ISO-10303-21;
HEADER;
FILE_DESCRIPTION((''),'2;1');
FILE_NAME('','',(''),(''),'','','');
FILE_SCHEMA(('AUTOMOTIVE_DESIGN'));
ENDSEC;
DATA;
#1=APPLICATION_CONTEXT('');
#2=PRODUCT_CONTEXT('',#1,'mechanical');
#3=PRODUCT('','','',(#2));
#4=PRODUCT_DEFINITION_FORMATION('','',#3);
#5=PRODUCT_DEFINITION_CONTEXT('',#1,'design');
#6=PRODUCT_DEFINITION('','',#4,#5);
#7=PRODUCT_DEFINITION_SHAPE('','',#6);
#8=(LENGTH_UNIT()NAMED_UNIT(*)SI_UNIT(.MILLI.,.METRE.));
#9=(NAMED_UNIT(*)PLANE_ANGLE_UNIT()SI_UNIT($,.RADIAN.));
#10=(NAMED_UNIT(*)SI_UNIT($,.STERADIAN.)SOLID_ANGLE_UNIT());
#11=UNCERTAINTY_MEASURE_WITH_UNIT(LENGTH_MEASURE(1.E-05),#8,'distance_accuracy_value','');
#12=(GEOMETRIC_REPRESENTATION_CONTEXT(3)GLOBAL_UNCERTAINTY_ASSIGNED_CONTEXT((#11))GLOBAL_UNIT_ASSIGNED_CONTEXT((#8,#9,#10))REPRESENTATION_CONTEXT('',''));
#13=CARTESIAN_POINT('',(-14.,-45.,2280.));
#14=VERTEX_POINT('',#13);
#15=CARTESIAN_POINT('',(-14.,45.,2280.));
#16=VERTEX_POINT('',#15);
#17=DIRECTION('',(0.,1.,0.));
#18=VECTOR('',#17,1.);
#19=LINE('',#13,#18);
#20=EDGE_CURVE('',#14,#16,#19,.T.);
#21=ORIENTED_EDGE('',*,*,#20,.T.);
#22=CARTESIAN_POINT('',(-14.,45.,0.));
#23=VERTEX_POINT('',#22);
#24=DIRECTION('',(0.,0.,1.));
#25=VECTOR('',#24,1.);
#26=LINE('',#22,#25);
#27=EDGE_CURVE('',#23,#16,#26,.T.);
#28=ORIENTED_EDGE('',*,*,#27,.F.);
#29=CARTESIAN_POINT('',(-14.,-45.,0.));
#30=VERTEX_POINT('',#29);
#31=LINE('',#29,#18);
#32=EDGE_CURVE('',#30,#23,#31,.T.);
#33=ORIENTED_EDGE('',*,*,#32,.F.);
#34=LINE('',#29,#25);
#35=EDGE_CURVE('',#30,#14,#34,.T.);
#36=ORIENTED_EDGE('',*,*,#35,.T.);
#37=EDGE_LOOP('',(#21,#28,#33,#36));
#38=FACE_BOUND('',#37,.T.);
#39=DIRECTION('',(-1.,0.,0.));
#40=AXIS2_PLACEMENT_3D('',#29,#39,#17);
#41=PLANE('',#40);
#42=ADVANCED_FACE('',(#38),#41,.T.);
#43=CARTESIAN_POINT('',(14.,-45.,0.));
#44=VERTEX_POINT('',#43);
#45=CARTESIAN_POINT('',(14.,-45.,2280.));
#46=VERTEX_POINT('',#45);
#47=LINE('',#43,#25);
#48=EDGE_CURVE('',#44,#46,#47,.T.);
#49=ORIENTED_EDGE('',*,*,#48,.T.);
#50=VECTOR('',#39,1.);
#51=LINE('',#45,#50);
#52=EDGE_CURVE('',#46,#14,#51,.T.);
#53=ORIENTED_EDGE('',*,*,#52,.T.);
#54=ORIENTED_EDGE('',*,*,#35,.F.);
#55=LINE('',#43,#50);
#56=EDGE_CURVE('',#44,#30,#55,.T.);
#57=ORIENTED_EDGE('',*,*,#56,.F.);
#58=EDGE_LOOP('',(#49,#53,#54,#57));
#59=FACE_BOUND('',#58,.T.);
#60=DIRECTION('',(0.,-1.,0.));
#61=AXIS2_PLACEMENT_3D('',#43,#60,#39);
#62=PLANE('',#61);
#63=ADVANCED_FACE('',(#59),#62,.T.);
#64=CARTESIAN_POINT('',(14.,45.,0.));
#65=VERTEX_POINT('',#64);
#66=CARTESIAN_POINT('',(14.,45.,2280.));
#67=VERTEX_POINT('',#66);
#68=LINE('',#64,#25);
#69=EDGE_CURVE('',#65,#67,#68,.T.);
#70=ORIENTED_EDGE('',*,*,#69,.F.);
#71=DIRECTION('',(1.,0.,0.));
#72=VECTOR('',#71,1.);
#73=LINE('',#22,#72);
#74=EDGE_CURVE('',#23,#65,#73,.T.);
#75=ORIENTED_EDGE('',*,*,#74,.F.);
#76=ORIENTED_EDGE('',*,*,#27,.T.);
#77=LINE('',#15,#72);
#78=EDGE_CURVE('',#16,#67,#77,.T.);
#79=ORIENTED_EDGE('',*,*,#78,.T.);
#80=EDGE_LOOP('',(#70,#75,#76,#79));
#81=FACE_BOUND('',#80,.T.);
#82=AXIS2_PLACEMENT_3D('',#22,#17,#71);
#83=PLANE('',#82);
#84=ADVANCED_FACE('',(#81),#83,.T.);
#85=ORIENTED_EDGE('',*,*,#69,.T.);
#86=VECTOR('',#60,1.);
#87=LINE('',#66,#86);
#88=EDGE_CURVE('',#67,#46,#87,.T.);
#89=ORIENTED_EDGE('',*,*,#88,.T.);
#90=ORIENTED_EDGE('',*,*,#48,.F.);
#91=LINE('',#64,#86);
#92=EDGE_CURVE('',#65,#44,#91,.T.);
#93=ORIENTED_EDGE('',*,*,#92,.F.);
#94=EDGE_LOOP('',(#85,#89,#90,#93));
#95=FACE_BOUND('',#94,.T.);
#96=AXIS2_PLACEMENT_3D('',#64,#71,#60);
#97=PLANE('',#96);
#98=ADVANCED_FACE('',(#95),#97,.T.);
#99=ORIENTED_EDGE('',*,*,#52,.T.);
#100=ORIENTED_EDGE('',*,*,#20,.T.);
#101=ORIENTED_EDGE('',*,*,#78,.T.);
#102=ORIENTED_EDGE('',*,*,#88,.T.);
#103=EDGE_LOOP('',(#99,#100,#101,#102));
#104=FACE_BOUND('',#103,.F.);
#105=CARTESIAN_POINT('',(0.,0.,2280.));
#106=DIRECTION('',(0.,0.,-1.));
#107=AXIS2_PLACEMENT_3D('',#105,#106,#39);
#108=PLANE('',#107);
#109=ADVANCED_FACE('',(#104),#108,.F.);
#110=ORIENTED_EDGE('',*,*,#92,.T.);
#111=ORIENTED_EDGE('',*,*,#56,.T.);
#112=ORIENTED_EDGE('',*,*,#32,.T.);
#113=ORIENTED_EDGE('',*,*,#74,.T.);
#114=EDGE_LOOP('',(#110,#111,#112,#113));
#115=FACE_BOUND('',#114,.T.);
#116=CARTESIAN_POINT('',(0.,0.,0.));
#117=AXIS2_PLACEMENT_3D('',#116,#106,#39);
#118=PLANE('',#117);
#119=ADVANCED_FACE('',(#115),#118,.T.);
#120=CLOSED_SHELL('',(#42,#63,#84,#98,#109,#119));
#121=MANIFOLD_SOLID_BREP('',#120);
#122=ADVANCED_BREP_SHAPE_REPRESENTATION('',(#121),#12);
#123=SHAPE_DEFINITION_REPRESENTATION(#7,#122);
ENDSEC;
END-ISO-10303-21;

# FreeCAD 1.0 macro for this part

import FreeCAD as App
import Part
import Sketcher
from FreeCAD import Vector
Q = App.Units.Quantity

doc = App.newDocument("Part")
params = doc.addObject("Spreadsheet::Sheet", "Params")
for row, (alias, value) in enumerate([
    ("sketch1_width", "28 mm"),
    ("sketch1_height", "90 mm"),
    ("pad1_length", "2280 mm"),
], start=1):
    params.set(f"A{row}", alias)
    params.set(f"B{row}", "=" + value)
    params.setAlias(f"B{row}", alias)

body = doc.addObject("PartDesign::Body", "Body")

# Sketch on XY plane
sketch1 = body.newObject("Sketcher::SketchObject", "Sketch")
sketch1.AttachmentSupport = (doc.getObject("XY_Plane"), [""])
sketch1.MapMode = "FlatFace"
sketch1.addGeometry(Part.LineSegment(Vector(14, 45, 0), Vector(14, -45, 0)), False)
sketch1.addGeometry(Part.LineSegment(Vector(14, -45, 0), Vector(-14, -45, 0)), False)
sketch1.addGeometry(Part.LineSegment(Vector(-14, -45, 0), Vector(-14, 45, 0)), False)
sketch1.addGeometry(Part.LineSegment(Vector(-14, 45, 0), Vector(14, 45, 0)), False)
sketch1.addConstraint(Sketcher.Constraint("Coincident", 0, 2, 1, 1))
sketch1.addConstraint(Sketcher.Constraint("Coincident", 1, 2, 2, 1))
sketch1.addConstraint(Sketcher.Constraint("Coincident", 2, 2, 3, 1))
sketch1.addConstraint(Sketcher.Constraint("Coincident", 3, 2, 0, 1))
sketch1.addConstraint(Sketcher.Constraint("Vertical", 0))
sketch1.addConstraint(Sketcher.Constraint("Horizontal", 1))
sketch1.addConstraint(Sketcher.Constraint("Vertical", 2))
sketch1.addConstraint(Sketcher.Constraint("Horizontal", 3))
sketch1.addConstraint(Sketcher.Constraint("Symmetric", 0, 2, 2, 2, -1, 1))
sketch1.addConstraint(Sketcher.Constraint("DistanceX", 1, 2, 1, 1, Q("28 mm")))
sketch1.addConstraint(Sketcher.Constraint("DistanceY", 0, 2, 0, 1, Q("90 mm")))
sketch1.setExpression("Constraints[9]", "Params.sketch1_width")
sketch1.setExpression("Constraints[10]", "Params.sketch1_height")
pad1 = body.newObject("PartDesign::Pad", "Pad")
pad1.Profile = sketch1
pad1.setExpression("Length", "Params.pad1_length")

doc.recompute()
